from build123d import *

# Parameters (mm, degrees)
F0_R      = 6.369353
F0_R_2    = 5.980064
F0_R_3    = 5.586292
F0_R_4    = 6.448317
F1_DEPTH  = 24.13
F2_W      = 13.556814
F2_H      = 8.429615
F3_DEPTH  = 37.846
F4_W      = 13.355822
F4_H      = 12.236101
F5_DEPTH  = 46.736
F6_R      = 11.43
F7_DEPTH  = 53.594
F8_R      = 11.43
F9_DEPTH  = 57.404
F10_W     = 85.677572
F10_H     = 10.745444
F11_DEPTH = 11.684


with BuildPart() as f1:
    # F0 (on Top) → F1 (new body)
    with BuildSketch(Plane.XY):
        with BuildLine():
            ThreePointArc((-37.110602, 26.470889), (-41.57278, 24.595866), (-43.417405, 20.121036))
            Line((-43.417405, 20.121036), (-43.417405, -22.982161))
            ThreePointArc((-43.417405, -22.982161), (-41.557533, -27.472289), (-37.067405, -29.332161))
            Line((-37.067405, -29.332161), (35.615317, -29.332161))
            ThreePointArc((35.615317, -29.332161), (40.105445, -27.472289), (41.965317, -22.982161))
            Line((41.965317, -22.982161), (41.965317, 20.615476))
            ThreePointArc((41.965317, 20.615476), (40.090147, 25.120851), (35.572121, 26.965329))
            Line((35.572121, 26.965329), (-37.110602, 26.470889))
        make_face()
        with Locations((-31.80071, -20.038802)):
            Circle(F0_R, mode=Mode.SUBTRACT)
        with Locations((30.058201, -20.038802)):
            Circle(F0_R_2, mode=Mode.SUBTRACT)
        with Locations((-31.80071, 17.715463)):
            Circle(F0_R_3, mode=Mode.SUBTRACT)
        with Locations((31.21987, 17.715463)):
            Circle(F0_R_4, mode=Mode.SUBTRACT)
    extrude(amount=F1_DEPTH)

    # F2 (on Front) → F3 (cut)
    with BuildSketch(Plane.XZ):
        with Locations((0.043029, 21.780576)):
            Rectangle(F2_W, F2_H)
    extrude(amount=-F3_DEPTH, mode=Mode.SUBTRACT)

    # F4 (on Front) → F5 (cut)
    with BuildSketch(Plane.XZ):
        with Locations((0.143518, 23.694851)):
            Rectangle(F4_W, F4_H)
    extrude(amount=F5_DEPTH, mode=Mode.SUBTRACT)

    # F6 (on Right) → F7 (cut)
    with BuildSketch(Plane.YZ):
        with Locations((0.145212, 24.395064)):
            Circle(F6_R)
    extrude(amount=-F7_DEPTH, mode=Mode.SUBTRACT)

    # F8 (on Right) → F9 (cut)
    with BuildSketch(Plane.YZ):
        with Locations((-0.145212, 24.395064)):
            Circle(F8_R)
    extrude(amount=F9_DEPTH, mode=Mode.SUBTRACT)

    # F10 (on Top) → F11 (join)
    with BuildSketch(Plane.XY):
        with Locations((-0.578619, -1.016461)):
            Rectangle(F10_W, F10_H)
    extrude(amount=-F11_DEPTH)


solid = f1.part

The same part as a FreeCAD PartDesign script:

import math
import FreeCAD as App
import Part
import Sketcher
from FreeCAD import Vector
Q = App.Units.Quantity


def add_polygon(sketch, points):
    """Adds a closed chain of lines whose ends are joined by coincident constraints."""
    first, n = sketch.GeometryCount, len(points)
    for a, b in zip(points, points[1:] + points[:1]):
        sketch.addGeometry(Part.LineSegment(App.Vector(*a, 0), App.Vector(*b, 0)), False)
    for i in range(n):
        sketch.addConstraint(Sketcher.Constraint("Coincident", first + i, 2, first + (i + 1) % n, 1))

doc = App.newDocument("Part")
body = doc.addObject("PartDesign::Body", "Body")

# Sketch on XY plane
sketch1 = doc.addObject("Sketcher::SketchObject", "Sketch")
body.addObject(sketch1)
sketch1.AttachmentSupport = (doc.XY_Plane, [""])
sketch1.MapMode = "FlatFace"
sketch1.addGeometry([
    Part.ArcOfCircle(Part.Circle(Vector(-37, 20, 0), Vector(0, 0, 1), 6), math.radians(90), math.radians(180)),  # 0
    Part.LineSegment(Vector(-43, 20, 0), Vector(-43, -23, 0)),  # 1
    Part.ArcOfCircle(Part.Circle(Vector(-37, -23, 0), Vector(0, 0, 1), 6), math.radians(-180), math.radians(-90)),  # 2
    Part.LineSegment(Vector(-37, -29, 0), Vector(36, -29, 0)),  # 3
    Part.ArcOfCircle(Part.Circle(Vector(36, -23, 0), Vector(0, 0, 1), 6), math.radians(-90), math.radians(0)),  # 4
    Part.LineSegment(Vector(42, -23, 0), Vector(42, 21, 0)),  # 5
    Part.ArcOfCircle(Part.Circle(Vector(36, 21, 0), Vector(0, 0, 1), 6), math.radians(0), math.radians(90)),  # 6
    Part.LineSegment(Vector(36, 27, 0), Vector(-37, 26, 0)),  # 7
    Part.Circle(Vector(-32, -20, 0), Vector(0, 0, 1), 6),  # 8
    Part.Circle(Vector(30, -20, 0), Vector(0, 0, 1), 6),  # 9
    Part.Circle(Vector(-32, 18, 0), Vector(0, 0, 1), 6),  # 10
    Part.Circle(Vector(31, 18, 0), Vector(0, 0, 1), 6),  # 11
], False)
sketch1.addConstraint([
    Sketcher.Constraint("Tangent", 0, 2, 1, 1),
    Sketcher.Constraint("Tangent", 1, 2, 2, 1),
    Sketcher.Constraint("Tangent", 2, 2, 3, 1),
    Sketcher.Constraint("Tangent", 3, 2, 4, 1),
    Sketcher.Constraint("Tangent", 4, 2, 5, 1),
    Sketcher.Constraint("Tangent", 5, 2, 6, 1),
    Sketcher.Constraint("Tangent", 6, 2, 7, 1),
    Sketcher.Constraint("Tangent", 7, 2, 0, 1),
    Sketcher.Constraint("Vertical", 1),
    Sketcher.Constraint("Horizontal", 3),
    Sketcher.Constraint("Vertical", 5),
    Sketcher.Constraint("Equal", 0, 2),
    Sketcher.Constraint("Equal", 2, 4),
    Sketcher.Constraint("Equal", 4, 6),
    Sketcher.Constraint("Horizontal", 8, 3, 9, 3),
    Sketcher.Constraint("Horizontal", 10, 3, 11, 3),
    Sketcher.Constraint("Vertical", 8, 3, 10, 3),
    Sketcher.Constraint("Radius", 0, Q("0.2499999 in")),
    Sketcher.Constraint("Diameter", 8, 12.738706),
    Sketcher.Constraint("Diameter", 9, 11.960128),
    Sketcher.Constraint("Diameter", 10, 11.172584),
    Sketcher.Constraint("Diameter", 11, 12.896634),
    Sketcher.Constraint("DistanceX", 3, 1, 3, 2, 72.682722),
    Sketcher.Constraint("DistanceX", -1, 1, 9, 3, 30.058201),
    Sketcher.Constraint("DistanceY", 2, 3, 0, 3, 43.103198),
    Sketcher.Constraint("DistanceY", 5, 1, 5, 2, 43.597637),
    Sketcher.Constraint("DistanceY", 2, 3, -1, 1, 22.982161),
    Sketcher.Constraint("DistanceX", -1, 1, 6, 3, 35.615319),
    Sketcher.Constraint("DistanceX", 8, 3, -1, 1, 31.80071),
    Sketcher.Constraint("DistanceX", -1, 1, 11, 3, 31.21987),
    Sketcher.Constraint("DistanceY", 2, 3, 8, 3, 2.943359),
    Sketcher.Constraint("DistanceY", -1, 1, 10, 3, 17.715463),
])
pad1 = doc.addObject("PartDesign::Pad", "Pad")
body.addObject(pad1)
pad1.Profile = sketch1
pad1.Length = Q("0.95 in")

# Sketch on XZ plane
sketch2 = doc.addObject("Sketcher::SketchObject", "Sketch001")
body.addObject(sketch2)
sketch2.AttachmentSupport = (doc.XZ_Plane, [""])
sketch2.MapMode = "FlatFace"
add_polygon(sketch2, [(-7, 26), (-7, 18), (7, 18), (7, 26)])  # lines 0-3
sketch2.addConstraint([
    Sketcher.Constraint("Vertical", 0),
    Sketcher.Constraint("Horizontal", 1),
    Sketcher.Constraint("Vertical", 2),
    Sketcher.Constraint("Horizontal", 3),
    Sketcher.Constraint("DistanceX", 1, 1, 1, 2, 13.556814),
    Sketcher.Constraint("DistanceY", 0, 2, 0, 1, 8.429615),
    Sketcher.Constraint("DistanceY", -1, 1, 0, 2, 17.565769),
    Sketcher.Constraint("DistanceX", 0, 2, -1, 1, 6.735378),
])
pocket1 = doc.addObject("PartDesign::Pocket", "Pocket")
body.addObject(pocket1)
pocket1.Profile = sketch2
pocket1.Length = Q("1.49 in")

# Sketch on XZ plane
sketch3 = doc.addObject("Sketcher::SketchObject", "Sketch002")
body.addObject(sketch3)
sketch3.AttachmentSupport = (doc.XZ_Plane, [""])
sketch3.MapMode = "FlatFace"
add_polygon(sketch3, [(-7, 30), (-7, 18), (7, 18), (7, 30)])  # lines 0-3
sketch3.addConstraint([
    Sketcher.Constraint("Vertical", 0),
    Sketcher.Constraint("Horizontal", 1),
    Sketcher.Constraint("Vertical", 2),
    Sketcher.Constraint("Horizontal", 3),
    Sketcher.Constraint("DistanceY", -1, 1, 0, 2, Q("0.692 in")),
    Sketcher.Constraint("DistanceY", 0, 2, 0, 1, 12.236101),
    Sketcher.Constraint("DistanceX", 1, 1, 1, 2, 13.355822),
    Sketcher.Constraint("DistanceX", -1, 1, 1, 2, 6.821429),
])
pocket2 = doc.addObject("PartDesign::Pocket", "Pocket001")
body.addObject(pocket2)
pocket2.Profile = sketch3
pocket2.Length = Q("1.84 in")
pocket2.Reversed = True

# Sketch on YZ plane
sketch4 = doc.addObject("Sketcher::SketchObject", "Sketch003")
body.addObject(sketch4)
sketch4.AttachmentSupport = (doc.YZ_Plane, [""])
sketch4.MapMode = "FlatFace"
sketch4.addGeometry(Part.Circle(Vector(0, 24, 0), Vector(0, 0, 1), 11), False)
sketch4.addConstraint([
    Sketcher.Constraint("Diameter", 0, Q("0.9 in")),
    Sketcher.Constraint("DistanceX", -1, 1, 0, 3, 0.145212),
    Sketcher.Constraint("DistanceY", -1, 1, 0, 3, 24.395064),
])
pocket3 = doc.addObject("PartDesign::Pocket", "Pocket002")
body.addObject(pocket3)
pocket3.Profile = sketch4
pocket3.Length = Q("2.11 in")

# Sketch on YZ plane
sketch5 = doc.addObject("Sketcher::SketchObject", "Sketch004")
body.addObject(sketch5)
sketch5.AttachmentSupport = (doc.YZ_Plane, [""])
sketch5.MapMode = "FlatFace"
sketch5.addGeometry(Part.Circle(Vector(0, 24, 0), Vector(0, 0, 1), 11), False)
sketch5.addConstraint([
    Sketcher.Constraint("Diameter", 0, Q("0.9 in")),
    Sketcher.Constraint("DistanceX", 0, 3, -1, 1, 0.145212),
    Sketcher.Constraint("DistanceY", -1, 1, 0, 3, 24.395064),
])
pocket4 = doc.addObject("PartDesign::Pocket", "Pocket003")
body.addObject(pocket4)
pocket4.Profile = sketch5
pocket4.Length = Q("2.26 in")
pocket4.Reversed = True

# Sketch on XY plane
sketch6 = doc.addObject("Sketcher::SketchObject", "Sketch005")
body.addObject(sketch6)
sketch6.AttachmentSupport = (doc.XY_Plane, [""])
sketch6.MapMode = "FlatFace"
add_polygon(sketch6, [(-43, 4), (-43, -6), (42, -6), (42, 4)])  # lines 0-3
sketch6.addConstraint([
    Sketcher.Constraint("Vertical", 0),
    Sketcher.Constraint("Horizontal", 1),
    Sketcher.Constraint("Vertical", 2),
    Sketcher.Constraint("Horizontal", 3),
    Sketcher.Constraint("DistanceX", 1, 1, 1, 2, 85.677572),
    Sketcher.Constraint("DistanceY", 0, 2, 0, 1, 10.745444),
    Sketcher.Constraint("DistanceY", -1, 1, 2, 2, 4.356261),
    Sketcher.Constraint("DistanceX", 0, 2, -1, 1, 43.417405),
])
pad2 = doc.addObject("PartDesign::Pad", "Pad001")
body.addObject(pad2)
pad2.Profile = sketch6
pad2.Length = Q("0.46 in")
pad2.Reversed = True

doc.recompute()
